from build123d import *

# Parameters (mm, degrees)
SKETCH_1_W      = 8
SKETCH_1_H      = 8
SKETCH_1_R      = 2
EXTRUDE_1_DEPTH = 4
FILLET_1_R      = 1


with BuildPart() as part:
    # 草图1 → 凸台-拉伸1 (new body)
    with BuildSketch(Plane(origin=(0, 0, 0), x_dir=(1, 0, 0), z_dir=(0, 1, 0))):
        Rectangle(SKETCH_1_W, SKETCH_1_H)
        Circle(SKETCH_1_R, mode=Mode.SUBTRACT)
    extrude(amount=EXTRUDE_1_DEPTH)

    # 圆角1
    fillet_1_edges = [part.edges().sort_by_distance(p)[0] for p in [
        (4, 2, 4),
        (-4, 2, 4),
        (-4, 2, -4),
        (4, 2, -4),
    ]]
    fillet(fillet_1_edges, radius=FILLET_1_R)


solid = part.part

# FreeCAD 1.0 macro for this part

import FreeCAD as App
import Part
import Sketcher


def edges_at(feature, points):
    """Names of the edges that pass closest to the given points."""
    edges = feature.Shape.Edges
    near = lambda p: min(range(len(edges)), key=lambda i: edges[i].distToShape(Part.Vertex(*p))[0])
    return sorted({f"Edge{near(p) + 1}" for p in points})


def add_polygon(sketch, points):
    """Adds a closed chain of lines whose ends are joined by coincident constraints."""
    first, n = sketch.GeometryCount, len(points)
    for a, b in zip(points, points[1:] + points[:1]):
        sketch.addGeometry(Part.LineSegment(App.Vector(*a, 0), App.Vector(*b, 0)), False)
    for i in range(n):
        sketch.addConstraint(Sketcher.Constraint("Coincident", first + i, 2, first + (i + 1) % n, 1))

doc = App.newDocument("Part")
body = doc.addObject("PartDesign::Body", "Body")

# Sketch on XZ plane
sketch1 = body.newObject("Sketcher::SketchObject", "Sketch")
sketch1.AttachmentSupport = (doc.getObject("XZ_Plane"), [""])
sketch1.MapMode = "FlatFace"
add_polygon(sketch1, [(-4, -4), (-4, 4), (4, 4), (4, -4)])  # lines 0-3
sketch1.addGeometry(Part.Circle(App.Vector(0, 0, 0), App.Vector(0, 0, 1), 2), False)  # 4
sketch1.addConstraint([
    Sketcher.Constraint("Vertical", 0),
    Sketcher.Constraint("Horizontal", 1),
    Sketcher.Constraint("Vertical", 2),
    Sketcher.Constraint("Horizontal", 3),
    Sketcher.Constraint("Coincident", 4, 3, -1, 1),
    Sketcher.Constraint("Symmetric", 0, 2, 2, 2, -1, 1),
    Sketcher.Constraint("Equal", 3, 0),
    Sketcher.Constraint("Diameter", 4, 4.0),
    Sketcher.Constraint("DistanceX", 1, 1, 1, 2, 8.0),
])
pad1 = body.newObject("PartDesign::Pad", "Pad")
pad1.Profile = sketch1
pad1.Length = 4
pad1.Reversed = True
doc.recompute()

fillet = body.newObject("PartDesign::Fillet", "Fillet")
fillet.Base = (pad1, edges_at(pad1, [
    (4, 2, 4),
    (-4, 2, 4),
    (-4, 2, -4),
    (4, 2, -4),
]))
fillet.Radius = 1

doc.recompute()
